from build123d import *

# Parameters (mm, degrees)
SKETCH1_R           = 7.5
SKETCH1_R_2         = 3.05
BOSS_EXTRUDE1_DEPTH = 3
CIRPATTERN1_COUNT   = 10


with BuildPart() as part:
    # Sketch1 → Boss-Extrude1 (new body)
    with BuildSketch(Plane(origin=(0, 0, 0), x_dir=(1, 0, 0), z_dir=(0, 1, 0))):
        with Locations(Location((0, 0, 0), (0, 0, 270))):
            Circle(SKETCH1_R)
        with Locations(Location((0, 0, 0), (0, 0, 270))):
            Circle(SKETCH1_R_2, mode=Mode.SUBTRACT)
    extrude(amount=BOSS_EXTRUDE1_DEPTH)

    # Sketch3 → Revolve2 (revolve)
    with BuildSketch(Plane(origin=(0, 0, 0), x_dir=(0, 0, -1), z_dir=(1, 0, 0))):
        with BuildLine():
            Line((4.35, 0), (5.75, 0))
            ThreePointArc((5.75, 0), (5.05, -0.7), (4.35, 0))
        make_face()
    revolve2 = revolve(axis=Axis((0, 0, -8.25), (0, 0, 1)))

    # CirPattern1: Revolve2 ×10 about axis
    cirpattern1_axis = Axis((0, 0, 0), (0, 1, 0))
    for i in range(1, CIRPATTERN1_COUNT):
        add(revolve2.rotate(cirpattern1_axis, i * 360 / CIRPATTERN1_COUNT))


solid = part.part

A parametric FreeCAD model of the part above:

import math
import FreeCAD as App
import Part
import Sketcher

V = App.Vector

doc = App.newDocument("Part")
body = doc.addObject("PartDesign::Body", "Body")

# Sketch on XZ plane
sketch1 = body.newObject("Sketcher::SketchObject", "Sketch")
sketch1.AttachmentSupport = (doc.getObject("XZ_Plane"), [""])
sketch1.MapMode = "FlatFace"
sketch1.addGeometry(Part.Circle(V(0, 0, 0), V(0, 0, 1), 7.5), False)
sketch1.addGeometry(Part.Circle(V(0, 0, 0), V(0, 0, 1), 3.05), False)
sketch1.addConstraint(Sketcher.Constraint("Coincident", 0, 3, -1, 1))
sketch1.addConstraint(Sketcher.Constraint("Coincident", 1, 3, -1, 1))
sketch1.addConstraint(Sketcher.Constraint("Diameter", 0, 15.0))
sketch1.addConstraint(Sketcher.Constraint("Diameter", 1, 6.1))
pad1 = body.newObject("PartDesign::Pad", "Pad")
pad1.Profile = sketch1
pad1.Length = 3
pad1.Reversed = True

# Sketch on YZ plane
sketch2 = body.newObject("Sketcher::SketchObject", "Sketch001")
sketch2.AttachmentSupport = (doc.getObject("YZ_Plane"), [""])
sketch2.MapMode = "FlatFace"
sketch2.addGeometry(Part.LineSegment(V(0, -5.75, 0), V(0, -4.35, 0)), False)
sketch2.addGeometry(Part.ArcOfCircle(Part.Circle(V(0, -5.05, 0), V(0, 0, 1), 0.7), math.radians(90), math.radians(270)), False)
sketch2.addConstraint(Sketcher.Constraint("Coincident", 0, 1, 1, 2))
sketch2.addConstraint(Sketcher.Constraint("Coincident", 1, 1, 0, 2))
sketch2.addConstraint(Sketcher.Constraint("Vertical", 0))
sketch2.addConstraint(Sketcher.Constraint("PointOnObject", 1, 3, -2))
sketch2.addConstraint(Sketcher.Constraint("PointOnObject", 0, 1, -2))
sketch2.addConstraint(Sketcher.Constraint("Radius", 1, 0.7))
sketch2.addConstraint(Sketcher.Constraint("DistanceY", 1, 3, -1, 1, 5.05))
revolution = body.newObject("PartDesign::Revolution", "Revolution")
revolution.Profile = sketch2
revolution.ReferenceAxis = (sketch2, ["V_Axis"])
revolution.Angle = 360
doc.recompute()

polarpattern = body.newObject("PartDesign::PolarPattern", "PolarPattern")
polarpattern.Originals = [revolution]
polarpattern.Axis = (doc.getObject("Y_Axis"), [""])
polarpattern.Angle = 360
polarpattern.Occurrences = 10
body.Tip = polarpattern

doc.recompute()
